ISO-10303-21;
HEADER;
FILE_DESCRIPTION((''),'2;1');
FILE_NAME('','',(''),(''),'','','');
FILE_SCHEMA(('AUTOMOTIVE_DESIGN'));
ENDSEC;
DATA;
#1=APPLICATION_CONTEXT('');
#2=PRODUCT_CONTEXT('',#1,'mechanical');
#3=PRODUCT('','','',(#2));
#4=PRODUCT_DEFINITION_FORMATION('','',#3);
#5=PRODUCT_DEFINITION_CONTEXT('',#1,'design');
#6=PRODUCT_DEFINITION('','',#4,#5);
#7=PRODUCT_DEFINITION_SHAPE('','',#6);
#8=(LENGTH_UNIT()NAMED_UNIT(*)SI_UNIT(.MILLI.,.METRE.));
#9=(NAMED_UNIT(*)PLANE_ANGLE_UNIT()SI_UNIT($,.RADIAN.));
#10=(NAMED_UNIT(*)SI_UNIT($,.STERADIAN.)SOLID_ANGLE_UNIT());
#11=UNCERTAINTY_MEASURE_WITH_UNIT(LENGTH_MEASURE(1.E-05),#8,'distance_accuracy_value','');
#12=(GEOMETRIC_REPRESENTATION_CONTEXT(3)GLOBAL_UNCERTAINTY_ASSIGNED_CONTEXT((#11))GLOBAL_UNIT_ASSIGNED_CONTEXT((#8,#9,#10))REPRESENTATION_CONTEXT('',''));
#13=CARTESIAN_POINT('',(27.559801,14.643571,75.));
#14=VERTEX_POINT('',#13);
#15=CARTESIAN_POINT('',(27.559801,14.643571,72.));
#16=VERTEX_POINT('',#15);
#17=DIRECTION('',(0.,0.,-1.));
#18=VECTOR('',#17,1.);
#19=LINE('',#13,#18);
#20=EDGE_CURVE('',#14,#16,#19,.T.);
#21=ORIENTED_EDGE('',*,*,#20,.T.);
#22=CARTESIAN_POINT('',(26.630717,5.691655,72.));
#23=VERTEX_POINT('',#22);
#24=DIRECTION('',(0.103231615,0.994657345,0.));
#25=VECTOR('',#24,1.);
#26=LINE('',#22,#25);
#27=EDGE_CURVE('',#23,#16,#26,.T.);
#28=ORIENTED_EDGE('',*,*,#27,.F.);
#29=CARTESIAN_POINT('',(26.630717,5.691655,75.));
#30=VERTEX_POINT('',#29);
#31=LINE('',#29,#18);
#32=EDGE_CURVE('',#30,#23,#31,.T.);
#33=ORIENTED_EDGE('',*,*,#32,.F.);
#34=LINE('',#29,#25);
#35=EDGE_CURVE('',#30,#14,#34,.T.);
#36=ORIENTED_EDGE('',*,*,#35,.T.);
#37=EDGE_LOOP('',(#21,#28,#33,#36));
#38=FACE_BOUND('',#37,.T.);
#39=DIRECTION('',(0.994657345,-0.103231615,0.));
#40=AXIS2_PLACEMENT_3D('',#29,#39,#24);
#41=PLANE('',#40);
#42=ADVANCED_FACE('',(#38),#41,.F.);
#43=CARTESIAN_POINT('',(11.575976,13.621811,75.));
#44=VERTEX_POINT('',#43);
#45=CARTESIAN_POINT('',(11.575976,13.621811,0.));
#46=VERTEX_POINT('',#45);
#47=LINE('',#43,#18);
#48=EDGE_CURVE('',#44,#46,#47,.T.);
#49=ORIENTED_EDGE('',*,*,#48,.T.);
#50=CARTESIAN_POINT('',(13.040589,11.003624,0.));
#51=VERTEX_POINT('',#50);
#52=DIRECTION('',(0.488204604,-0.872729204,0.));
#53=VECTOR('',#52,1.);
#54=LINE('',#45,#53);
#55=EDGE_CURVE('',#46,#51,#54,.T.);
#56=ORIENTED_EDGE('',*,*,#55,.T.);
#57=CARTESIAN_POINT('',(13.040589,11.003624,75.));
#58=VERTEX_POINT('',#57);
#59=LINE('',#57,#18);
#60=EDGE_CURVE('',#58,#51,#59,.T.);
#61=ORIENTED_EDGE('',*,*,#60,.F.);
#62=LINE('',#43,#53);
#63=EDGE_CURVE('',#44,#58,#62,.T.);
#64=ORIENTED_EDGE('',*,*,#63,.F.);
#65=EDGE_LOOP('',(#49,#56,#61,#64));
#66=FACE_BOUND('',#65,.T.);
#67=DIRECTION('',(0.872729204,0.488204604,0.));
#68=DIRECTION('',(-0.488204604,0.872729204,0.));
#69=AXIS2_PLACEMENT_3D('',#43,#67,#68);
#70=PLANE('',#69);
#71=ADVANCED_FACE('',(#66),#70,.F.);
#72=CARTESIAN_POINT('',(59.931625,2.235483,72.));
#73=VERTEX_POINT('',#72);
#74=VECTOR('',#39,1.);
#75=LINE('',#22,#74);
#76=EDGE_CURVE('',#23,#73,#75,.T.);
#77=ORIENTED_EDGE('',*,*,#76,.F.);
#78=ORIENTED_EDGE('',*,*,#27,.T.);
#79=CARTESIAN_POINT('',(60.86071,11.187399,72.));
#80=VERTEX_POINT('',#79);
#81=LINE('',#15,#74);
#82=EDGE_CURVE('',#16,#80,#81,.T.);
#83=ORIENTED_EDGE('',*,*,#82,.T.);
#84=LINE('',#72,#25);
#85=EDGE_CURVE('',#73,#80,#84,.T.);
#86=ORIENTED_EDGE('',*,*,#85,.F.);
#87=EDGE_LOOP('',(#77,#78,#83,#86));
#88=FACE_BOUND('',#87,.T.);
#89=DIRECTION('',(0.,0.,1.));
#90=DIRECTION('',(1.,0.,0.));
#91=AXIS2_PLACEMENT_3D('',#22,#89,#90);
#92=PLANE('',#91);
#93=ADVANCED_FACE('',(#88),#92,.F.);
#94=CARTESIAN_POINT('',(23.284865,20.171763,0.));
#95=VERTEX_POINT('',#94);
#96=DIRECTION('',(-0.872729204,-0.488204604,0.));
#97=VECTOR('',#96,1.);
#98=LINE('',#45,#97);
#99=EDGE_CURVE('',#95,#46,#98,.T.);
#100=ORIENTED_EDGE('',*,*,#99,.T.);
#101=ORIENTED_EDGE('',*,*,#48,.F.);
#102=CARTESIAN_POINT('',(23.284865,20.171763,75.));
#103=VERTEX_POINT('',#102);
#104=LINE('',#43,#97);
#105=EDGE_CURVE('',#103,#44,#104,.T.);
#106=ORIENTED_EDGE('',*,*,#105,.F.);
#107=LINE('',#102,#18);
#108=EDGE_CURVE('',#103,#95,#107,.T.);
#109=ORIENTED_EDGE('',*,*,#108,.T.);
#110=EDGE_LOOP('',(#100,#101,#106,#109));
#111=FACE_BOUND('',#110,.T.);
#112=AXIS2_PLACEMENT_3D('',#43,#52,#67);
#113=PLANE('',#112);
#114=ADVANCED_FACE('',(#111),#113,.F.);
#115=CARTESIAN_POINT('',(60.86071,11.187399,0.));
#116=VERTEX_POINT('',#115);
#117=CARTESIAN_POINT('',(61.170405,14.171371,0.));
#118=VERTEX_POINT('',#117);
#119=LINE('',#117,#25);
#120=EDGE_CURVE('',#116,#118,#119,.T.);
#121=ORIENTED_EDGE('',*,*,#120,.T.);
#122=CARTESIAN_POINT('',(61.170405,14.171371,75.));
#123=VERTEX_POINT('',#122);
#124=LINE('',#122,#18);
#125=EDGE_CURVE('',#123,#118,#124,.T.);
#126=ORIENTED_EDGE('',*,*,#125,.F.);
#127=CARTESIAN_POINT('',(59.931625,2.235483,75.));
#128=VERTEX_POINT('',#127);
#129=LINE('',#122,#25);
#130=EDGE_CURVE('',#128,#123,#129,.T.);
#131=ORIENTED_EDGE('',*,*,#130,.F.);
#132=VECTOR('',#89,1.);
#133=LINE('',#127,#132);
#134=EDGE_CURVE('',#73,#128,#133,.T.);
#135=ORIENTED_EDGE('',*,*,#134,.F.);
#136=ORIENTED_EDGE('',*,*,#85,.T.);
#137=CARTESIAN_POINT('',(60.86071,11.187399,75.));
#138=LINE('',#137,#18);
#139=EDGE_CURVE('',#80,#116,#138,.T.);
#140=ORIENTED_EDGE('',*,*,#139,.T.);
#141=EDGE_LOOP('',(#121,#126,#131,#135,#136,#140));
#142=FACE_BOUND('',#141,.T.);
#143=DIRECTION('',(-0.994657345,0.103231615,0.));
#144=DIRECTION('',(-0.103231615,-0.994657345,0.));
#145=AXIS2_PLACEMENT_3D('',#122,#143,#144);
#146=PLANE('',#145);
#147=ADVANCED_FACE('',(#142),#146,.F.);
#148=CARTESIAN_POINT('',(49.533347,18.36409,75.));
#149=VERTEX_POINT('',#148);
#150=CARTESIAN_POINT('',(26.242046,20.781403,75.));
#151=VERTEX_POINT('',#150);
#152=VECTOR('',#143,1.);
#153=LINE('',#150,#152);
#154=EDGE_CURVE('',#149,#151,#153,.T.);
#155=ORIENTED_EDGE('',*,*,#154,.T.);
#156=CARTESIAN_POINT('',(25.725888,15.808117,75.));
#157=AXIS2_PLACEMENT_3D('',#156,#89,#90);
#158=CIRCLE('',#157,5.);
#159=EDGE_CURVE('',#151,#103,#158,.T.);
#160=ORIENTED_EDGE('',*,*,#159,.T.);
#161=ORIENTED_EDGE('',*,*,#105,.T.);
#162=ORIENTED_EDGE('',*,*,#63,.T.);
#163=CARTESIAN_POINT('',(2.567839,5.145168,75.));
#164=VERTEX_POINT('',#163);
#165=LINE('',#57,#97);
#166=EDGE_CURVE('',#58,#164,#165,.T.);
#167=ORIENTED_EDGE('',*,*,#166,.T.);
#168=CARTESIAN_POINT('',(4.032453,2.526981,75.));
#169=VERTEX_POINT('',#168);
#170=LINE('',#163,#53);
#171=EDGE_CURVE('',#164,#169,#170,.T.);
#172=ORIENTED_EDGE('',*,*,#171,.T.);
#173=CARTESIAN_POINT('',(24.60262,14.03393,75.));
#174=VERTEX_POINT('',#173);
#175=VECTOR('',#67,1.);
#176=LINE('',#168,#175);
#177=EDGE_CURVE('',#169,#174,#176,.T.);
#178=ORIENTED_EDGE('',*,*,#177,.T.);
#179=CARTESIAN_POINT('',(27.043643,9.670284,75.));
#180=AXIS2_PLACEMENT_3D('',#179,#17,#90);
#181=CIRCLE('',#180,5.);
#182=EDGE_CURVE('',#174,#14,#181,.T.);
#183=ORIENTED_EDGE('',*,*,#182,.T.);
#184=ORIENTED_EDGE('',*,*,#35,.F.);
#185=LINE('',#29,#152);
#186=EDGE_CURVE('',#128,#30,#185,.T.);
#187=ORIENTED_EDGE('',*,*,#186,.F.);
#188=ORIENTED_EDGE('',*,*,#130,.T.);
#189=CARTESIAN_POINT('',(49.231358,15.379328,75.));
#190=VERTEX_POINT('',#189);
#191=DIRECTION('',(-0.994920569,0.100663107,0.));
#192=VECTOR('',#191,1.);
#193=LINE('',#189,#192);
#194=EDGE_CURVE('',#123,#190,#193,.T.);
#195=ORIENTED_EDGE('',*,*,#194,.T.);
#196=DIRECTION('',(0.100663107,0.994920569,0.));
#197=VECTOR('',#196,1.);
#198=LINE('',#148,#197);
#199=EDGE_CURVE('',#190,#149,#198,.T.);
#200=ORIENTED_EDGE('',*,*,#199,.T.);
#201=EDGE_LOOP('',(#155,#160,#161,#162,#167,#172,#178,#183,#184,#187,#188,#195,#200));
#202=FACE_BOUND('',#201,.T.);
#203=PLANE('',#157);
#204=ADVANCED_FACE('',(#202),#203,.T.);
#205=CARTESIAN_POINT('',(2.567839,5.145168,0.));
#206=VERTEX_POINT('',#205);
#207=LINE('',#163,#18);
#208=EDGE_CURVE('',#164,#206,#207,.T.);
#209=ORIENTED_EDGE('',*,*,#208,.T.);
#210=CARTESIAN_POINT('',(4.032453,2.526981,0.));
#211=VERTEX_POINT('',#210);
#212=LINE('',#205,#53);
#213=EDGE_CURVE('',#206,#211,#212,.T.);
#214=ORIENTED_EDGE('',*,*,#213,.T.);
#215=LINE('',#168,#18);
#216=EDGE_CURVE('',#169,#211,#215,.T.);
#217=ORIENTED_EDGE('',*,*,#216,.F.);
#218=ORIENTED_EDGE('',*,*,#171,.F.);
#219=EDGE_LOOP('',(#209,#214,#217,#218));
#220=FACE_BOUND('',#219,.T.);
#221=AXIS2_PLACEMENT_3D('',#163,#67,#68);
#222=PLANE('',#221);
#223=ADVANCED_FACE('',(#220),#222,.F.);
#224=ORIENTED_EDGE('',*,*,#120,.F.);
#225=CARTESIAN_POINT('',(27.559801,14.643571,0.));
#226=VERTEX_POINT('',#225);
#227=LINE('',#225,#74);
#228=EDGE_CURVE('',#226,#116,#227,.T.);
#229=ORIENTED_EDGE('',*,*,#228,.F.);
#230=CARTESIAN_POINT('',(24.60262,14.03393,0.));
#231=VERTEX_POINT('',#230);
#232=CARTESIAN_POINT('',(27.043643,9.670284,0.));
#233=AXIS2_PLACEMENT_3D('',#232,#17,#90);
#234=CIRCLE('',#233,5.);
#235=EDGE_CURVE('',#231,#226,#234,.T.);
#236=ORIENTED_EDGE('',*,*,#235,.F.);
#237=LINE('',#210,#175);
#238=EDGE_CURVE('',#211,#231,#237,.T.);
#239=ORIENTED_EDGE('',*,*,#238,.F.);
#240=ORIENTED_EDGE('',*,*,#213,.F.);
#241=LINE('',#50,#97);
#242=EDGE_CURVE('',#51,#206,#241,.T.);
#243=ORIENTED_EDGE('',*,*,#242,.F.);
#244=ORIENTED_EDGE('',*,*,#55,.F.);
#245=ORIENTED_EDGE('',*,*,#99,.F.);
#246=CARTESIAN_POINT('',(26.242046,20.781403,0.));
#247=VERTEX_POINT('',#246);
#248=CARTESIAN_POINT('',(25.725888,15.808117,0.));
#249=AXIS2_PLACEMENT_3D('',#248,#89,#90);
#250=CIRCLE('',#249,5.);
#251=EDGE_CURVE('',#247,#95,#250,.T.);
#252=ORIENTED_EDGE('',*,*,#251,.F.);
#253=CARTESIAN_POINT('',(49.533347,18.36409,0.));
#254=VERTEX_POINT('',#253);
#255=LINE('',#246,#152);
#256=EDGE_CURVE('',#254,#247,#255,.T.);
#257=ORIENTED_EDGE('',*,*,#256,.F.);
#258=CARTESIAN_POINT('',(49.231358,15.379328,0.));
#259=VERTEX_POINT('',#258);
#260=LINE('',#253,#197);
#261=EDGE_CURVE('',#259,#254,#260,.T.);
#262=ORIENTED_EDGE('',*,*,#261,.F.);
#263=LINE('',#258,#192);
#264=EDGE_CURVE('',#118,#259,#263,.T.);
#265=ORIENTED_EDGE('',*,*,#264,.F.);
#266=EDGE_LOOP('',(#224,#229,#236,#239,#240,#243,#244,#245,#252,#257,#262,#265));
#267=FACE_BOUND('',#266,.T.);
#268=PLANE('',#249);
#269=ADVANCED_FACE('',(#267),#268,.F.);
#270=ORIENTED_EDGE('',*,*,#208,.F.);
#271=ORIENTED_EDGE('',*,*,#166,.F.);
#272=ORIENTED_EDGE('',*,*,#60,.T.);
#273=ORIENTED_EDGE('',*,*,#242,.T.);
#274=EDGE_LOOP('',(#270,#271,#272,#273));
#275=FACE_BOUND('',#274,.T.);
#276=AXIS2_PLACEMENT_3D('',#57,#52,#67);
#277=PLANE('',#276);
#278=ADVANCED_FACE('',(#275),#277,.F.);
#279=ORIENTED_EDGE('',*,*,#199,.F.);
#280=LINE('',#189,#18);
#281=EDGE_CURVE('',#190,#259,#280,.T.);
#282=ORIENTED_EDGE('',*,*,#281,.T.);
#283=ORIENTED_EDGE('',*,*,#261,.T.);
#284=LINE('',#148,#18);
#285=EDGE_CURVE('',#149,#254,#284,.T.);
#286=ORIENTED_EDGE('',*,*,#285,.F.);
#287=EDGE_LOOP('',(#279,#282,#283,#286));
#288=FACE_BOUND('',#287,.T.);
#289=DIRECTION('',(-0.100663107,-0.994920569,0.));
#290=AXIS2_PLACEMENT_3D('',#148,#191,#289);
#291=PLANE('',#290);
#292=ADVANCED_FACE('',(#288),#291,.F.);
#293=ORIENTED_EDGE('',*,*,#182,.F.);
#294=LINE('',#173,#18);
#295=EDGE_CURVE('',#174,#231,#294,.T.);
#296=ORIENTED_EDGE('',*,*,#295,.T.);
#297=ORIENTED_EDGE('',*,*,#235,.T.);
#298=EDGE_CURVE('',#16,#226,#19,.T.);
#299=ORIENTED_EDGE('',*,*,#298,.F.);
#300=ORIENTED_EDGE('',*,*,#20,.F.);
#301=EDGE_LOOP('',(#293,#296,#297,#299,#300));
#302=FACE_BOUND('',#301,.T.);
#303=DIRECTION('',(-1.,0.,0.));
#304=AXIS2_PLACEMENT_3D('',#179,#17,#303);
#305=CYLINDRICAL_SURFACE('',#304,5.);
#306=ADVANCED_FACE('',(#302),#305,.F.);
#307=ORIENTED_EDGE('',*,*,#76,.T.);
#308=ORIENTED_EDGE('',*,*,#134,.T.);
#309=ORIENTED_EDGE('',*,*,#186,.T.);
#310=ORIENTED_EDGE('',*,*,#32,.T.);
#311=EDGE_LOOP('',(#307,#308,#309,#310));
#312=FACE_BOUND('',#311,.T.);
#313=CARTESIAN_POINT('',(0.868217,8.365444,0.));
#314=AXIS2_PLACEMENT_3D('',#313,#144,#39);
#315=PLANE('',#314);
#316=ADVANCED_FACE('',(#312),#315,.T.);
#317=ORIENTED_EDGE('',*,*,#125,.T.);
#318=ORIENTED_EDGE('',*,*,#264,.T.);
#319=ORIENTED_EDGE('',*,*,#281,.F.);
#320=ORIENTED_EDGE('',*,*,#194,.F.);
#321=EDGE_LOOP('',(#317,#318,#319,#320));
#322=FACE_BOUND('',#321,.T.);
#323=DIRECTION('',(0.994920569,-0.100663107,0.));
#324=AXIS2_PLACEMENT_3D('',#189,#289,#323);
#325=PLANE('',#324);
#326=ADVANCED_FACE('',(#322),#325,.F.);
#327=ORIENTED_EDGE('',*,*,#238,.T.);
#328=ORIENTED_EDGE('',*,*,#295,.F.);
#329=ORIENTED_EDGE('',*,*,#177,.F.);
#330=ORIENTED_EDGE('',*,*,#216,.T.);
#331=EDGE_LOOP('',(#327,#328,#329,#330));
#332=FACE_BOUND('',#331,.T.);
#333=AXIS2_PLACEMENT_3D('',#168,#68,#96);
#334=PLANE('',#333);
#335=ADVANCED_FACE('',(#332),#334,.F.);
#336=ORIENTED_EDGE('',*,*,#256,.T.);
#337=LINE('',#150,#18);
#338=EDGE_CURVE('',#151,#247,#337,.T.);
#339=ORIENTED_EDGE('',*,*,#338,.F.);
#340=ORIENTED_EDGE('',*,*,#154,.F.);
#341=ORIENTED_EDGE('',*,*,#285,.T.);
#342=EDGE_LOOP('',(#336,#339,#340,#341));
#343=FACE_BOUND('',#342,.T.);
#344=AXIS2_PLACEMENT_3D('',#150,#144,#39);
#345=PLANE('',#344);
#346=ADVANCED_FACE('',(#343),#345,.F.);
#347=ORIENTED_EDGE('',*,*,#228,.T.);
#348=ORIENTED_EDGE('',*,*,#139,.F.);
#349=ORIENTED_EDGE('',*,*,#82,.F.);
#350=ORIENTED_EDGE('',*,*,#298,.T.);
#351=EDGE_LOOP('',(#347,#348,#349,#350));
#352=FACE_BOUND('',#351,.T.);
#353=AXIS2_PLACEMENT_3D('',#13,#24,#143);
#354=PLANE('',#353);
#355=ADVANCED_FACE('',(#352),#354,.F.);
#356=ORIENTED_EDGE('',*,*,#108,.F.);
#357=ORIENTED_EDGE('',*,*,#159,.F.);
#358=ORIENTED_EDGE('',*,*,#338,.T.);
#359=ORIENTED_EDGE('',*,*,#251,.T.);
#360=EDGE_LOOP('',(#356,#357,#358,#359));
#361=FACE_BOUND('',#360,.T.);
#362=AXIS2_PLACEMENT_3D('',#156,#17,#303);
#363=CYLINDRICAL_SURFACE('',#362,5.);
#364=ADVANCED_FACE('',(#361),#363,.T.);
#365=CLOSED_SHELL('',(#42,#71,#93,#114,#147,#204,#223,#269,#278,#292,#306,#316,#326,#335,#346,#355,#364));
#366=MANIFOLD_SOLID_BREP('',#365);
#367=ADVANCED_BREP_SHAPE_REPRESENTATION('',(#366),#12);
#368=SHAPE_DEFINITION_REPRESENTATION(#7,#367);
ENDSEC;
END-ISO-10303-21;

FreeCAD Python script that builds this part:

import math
import FreeCAD as App
import Part
import Sketcher
from FreeCAD import Vector
Q = App.Units.Quantity

doc = App.newDocument("Part")
body = doc.addObject("PartDesign::Body", "Body")

# Sketch on XY plane
sketch1 = body.newObject("Sketcher::SketchObject", "Sketch")
sketch1.AttachmentSupport = (doc.getObject("XY_Plane"), [""])
sketch1.MapMode = "FlatFace"
sketch1.addGeometry([
    Part.LineSegment(Vector(11.6, 13.6, 0), Vector(13, 11, 0)),  # 0
    Part.LineSegment(Vector(13, 11, 0), Vector(2.6, 5.1, 0)),  # 1
    Part.LineSegment(Vector(2.6, 5.1, 0), Vector(4, 2.5, 0)),  # 2
    Part.LineSegment(Vector(4, 2.5, 0), Vector(24.6, 14, 0)),  # 3
    Part.ArcOfCircle(Part.Circle(Vector(27, 9.7, 0), Vector(0, 0, 1), 5), math.radians(84), math.radians(119)),  # 4
    Part.LineSegment(Vector(27.6, 14.6, 0), Vector(60.9, 11.2, 0)),  # 5
    Part.LineSegment(Vector(60.9, 11.2, 0), Vector(61.2, 14.2, 0)),  # 6
    Part.LineSegment(Vector(61.2, 14.2, 0), Vector(49.2, 15.4, 0)),  # 7
    Part.LineSegment(Vector(49.2, 15.4, 0), Vector(49.5, 18.4, 0)),  # 8
    Part.LineSegment(Vector(49.5, 18.4, 0), Vector(26.2, 20.8, 0)),  # 9
    Part.ArcOfCircle(Part.Circle(Vector(25.7, 15.8, 0), Vector(0, 0, 1), 5), math.radians(84), math.radians(119)),  # 10
    Part.LineSegment(Vector(23.3, 20.2, 0), Vector(11.6, 13.6, 0)),  # 11
], False)
sketch1.addConstraint([
    Sketcher.Constraint("Coincident", 0, 2, 1, 1),
    Sketcher.Constraint("Coincident", 1, 2, 2, 1),
    Sketcher.Constraint("Coincident", 2, 2, 3, 1),
    Sketcher.Constraint("Tangent", 3, 2, 4, 2),
    Sketcher.Constraint("Tangent", 4, 1, 5, 1),
    Sketcher.Constraint("Coincident", 5, 2, 6, 1),
    Sketcher.Constraint("Coincident", 6, 2, 7, 1),
    Sketcher.Constraint("Coincident", 7, 2, 8, 1),
    Sketcher.Constraint("Coincident", 8, 2, 9, 1),
    Sketcher.Constraint("Tangent", 9, 2, 10, 1),
    Sketcher.Constraint("Tangent", 10, 2, 11, 1),
    Sketcher.Constraint("Coincident", 11, 2, 0, 1),
    Sketcher.Constraint("Equal", 4, 10),
    Sketcher.Constraint("Perpendicular", 0, 1),
    Sketcher.Constraint("Perpendicular", 1, 2),
    Sketcher.Constraint("Perpendicular", 2, 3),
    Sketcher.Constraint("Perpendicular", 5, 6),
    Sketcher.Constraint("Perpendicular", 7, 8),
    Sketcher.Constraint("Perpendicular", 6, 9),
    Sketcher.Constraint("Parallel", 3, 11),
    Sketcher.Constraint("Equal", 0, 2),
    Sketcher.Constraint("Equal", 2, 6),
    Sketcher.Constraint("Equal", 1, 7),
    Sketcher.Constraint("Equal", 6, 8),
    Sketcher.Constraint("Radius", 4, Q("5 mm")),
    Sketcher.Constraint("Distance", 0, Q("3 mm")),
    Sketcher.Constraint("Distance", 1, Q("12 mm")),
    Sketcher.Constraint("DistanceX", -1, 1, 4, 1, Q("27.559801 mm")),
    Sketcher.Constraint("DistanceY", -1, 1, 5, 2, Q("11.187399 mm")),
    Sketcher.Constraint("DistanceX", 0, 2, 10, 3, Q("12.685299 mm")),
    Sketcher.Constraint("DistanceY", 6, 2, 4, 1, Q("0.4722 mm")),
    Sketcher.Constraint("Distance", 3, Q("23.569932 mm")),
    Sketcher.Constraint("Distance", 5, Q("33.479779 mm")),
    Sketcher.Constraint("DistanceX", -1, 1, 10, 3, Q("25.725888 mm")),
])
pad1 = body.newObject("PartDesign::Pad", "Pad")
pad1.Profile = sketch1
pad1.Length = 75

# Sketch on an angled plane
sketch2 = body.newObject("Sketcher::SketchObject", "Sketch001")
sketch2.Placement = App.Placement(Vector(1.797301, 17.31736, 0), App.Rotation(Vector(0.994657345, -0.103231615, 0), Vector(0, 0, 1), Vector(-0.103231615, -0.994657345, 0), "ZXY"))
sketch2.addGeometry([
    Part.LineSegment(Vector(25.9, 75, 0), Vector(25.9, 72, 0)),
    Part.LineSegment(Vector(25.9, 72, 0), Vector(59.4, 72, 0)),
    Part.LineSegment(Vector(59.4, 72, 0), Vector(59.4, 75, 0)),
    Part.LineSegment(Vector(59.4, 75, 0), Vector(25.9, 75, 0)),
], False)
sketch2.addConstraint([
    Sketcher.Constraint("Coincident", 0, 2, 1, 1),
    Sketcher.Constraint("Coincident", 1, 2, 2, 1),
    Sketcher.Constraint("Coincident", 2, 2, 3, 1),
    Sketcher.Constraint("Coincident", 3, 2, 0, 1),
    Sketcher.Constraint("Vertical", 0),
    Sketcher.Constraint("Horizontal", 1),
    Sketcher.Constraint("Vertical", 2),
    Sketcher.Constraint("Horizontal", 3),
    Sketcher.Constraint("DistanceY", 0, 2, 0, 1, Q("3 mm")),
    Sketcher.Constraint("DistanceY", -1, 1, 0, 2, Q("72 mm")),
    Sketcher.Constraint("DistanceX", 1, 1, 1, 2, Q("33.479779 mm")),
    Sketcher.Constraint("DistanceX", -1, 1, 0, 2, Q("25.90088 mm")),
])
pad2 = body.newObject("PartDesign::Pad", "Pad001")
pad2.Profile = sketch2
pad2.Length = 9

doc.recompute()
